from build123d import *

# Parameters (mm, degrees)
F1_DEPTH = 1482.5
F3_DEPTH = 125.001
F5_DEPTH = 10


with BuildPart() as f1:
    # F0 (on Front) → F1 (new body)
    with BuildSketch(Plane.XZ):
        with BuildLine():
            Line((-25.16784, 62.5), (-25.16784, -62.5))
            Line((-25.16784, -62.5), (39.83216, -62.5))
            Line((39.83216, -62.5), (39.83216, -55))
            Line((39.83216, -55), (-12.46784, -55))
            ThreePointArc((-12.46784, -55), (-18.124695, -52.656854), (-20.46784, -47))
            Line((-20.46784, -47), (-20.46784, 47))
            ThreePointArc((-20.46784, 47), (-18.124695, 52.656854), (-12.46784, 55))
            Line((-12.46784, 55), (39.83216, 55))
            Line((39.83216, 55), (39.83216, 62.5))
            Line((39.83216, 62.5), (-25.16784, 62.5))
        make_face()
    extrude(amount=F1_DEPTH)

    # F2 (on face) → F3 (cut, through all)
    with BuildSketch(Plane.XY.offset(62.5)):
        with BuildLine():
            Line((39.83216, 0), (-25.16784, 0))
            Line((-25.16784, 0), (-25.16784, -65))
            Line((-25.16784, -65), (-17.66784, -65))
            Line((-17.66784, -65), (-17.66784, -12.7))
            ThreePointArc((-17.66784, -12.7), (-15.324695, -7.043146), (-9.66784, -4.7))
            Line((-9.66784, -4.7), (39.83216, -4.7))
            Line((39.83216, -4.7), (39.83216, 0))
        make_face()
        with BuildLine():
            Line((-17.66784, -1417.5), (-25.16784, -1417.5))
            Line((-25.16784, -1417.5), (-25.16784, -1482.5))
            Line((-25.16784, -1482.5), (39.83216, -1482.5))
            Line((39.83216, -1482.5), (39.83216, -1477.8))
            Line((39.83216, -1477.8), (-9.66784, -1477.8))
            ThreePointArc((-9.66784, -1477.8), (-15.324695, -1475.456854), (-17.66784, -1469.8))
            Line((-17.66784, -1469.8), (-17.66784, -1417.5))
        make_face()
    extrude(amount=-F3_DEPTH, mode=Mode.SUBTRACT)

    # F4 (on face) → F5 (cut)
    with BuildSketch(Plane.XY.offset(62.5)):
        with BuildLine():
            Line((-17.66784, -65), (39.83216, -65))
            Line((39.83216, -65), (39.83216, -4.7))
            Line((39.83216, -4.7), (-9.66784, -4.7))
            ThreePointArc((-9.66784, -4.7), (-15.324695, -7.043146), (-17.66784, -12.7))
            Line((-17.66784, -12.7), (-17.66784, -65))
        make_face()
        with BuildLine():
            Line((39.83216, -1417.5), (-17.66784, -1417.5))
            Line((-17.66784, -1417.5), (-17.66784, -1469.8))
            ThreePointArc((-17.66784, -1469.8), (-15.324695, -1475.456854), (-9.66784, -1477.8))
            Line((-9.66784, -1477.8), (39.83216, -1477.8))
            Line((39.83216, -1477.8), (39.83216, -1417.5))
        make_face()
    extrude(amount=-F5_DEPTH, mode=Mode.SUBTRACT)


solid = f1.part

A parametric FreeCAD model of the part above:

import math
import FreeCAD as App
import Part
import Sketcher
from FreeCAD import Vector
Q = App.Units.Quantity

doc = App.newDocument("Part")
body = doc.addObject("PartDesign::Body", "Body")

# Sketch on XZ plane
sketch1 = body.newObject("Sketcher::SketchObject", "Sketch")
sketch1.AttachmentSupport = (doc.getObject("XZ_Plane"), [""])
sketch1.MapMode = "FlatFace"
sketch1.addGeometry(Part.LineSegment(Vector(-25, 62, 0), Vector(-25, -62, 0)), False)
sketch1.addGeometry(Part.LineSegment(Vector(-25, -62, 0), Vector(40, -62, 0)), False)
sketch1.addGeometry(Part.LineSegment(Vector(40, -62, 0), Vector(40, -55, 0)), False)
sketch1.addGeometry(Part.LineSegment(Vector(40, -55, 0), Vector(-12, -55, 0)), False)
sketch1.addGeometry(Part.ArcOfCircle(Part.Circle(Vector(-12, -47, 0), Vector(0, 0, 1), 8), math.radians(180), math.radians(270)), False)
sketch1.addGeometry(Part.LineSegment(Vector(-20, -47, 0), Vector(-20, 47, 0)), False)
sketch1.addGeometry(Part.ArcOfCircle(Part.Circle(Vector(-12, 47, 0), Vector(0, 0, 1), 8), math.radians(90), math.radians(180)), False)
sketch1.addGeometry(Part.LineSegment(Vector(-12, 55, 0), Vector(40, 55, 0)), False)
sketch1.addGeometry(Part.LineSegment(Vector(40, 55, 0), Vector(40, 62, 0)), False)
sketch1.addGeometry(Part.LineSegment(Vector(40, 62, 0), Vector(-25, 62, 0)), False)
sketch1.addConstraint(Sketcher.Constraint("Coincident", 0, 2, 1, 1))
sketch1.addConstraint(Sketcher.Constraint("Coincident", 1, 2, 2, 1))
sketch1.addConstraint(Sketcher.Constraint("Coincident", 2, 2, 3, 1))
sketch1.addConstraint(Sketcher.Constraint("Tangent", 3, 2, 4, 2))
sketch1.addConstraint(Sketcher.Constraint("Tangent", 4, 1, 5, 1))
sketch1.addConstraint(Sketcher.Constraint("Tangent", 5, 2, 6, 2))
sketch1.addConstraint(Sketcher.Constraint("Tangent", 6, 1, 7, 1))
sketch1.addConstraint(Sketcher.Constraint("Coincident", 7, 2, 8, 1))
sketch1.addConstraint(Sketcher.Constraint("Coincident", 8, 2, 9, 1))
sketch1.addConstraint(Sketcher.Constraint("Coincident", 9, 2, 0, 1))
sketch1.addConstraint(Sketcher.Constraint("Vertical", 0))
sketch1.addConstraint(Sketcher.Constraint("Horizontal", 1))
sketch1.addConstraint(Sketcher.Constraint("Vertical", 2))
sketch1.addConstraint(Sketcher.Constraint("Horizontal", 3))
sketch1.addConstraint(Sketcher.Constraint("Vertical", 5))
sketch1.addConstraint(Sketcher.Constraint("Horizontal", 7))
sketch1.addConstraint(Sketcher.Constraint("Vertical", 8))
sketch1.addConstraint(Sketcher.Constraint("Horizontal", 9))
sketch1.addConstraint(Sketcher.Constraint("Equal", 4, 6))
sketch1.addConstraint(Sketcher.Constraint("Symmetric", 2, 2, 7, 2, -1))
sketch1.addConstraint(Sketcher.Constraint("Equal", 2, 8))
sketch1.addConstraint(Sketcher.Constraint("Radius", 4, Q("7.999999 mm")))
sketch1.addConstraint(Sketcher.Constraint("DistanceX", 1, 1, 1, 2, Q("65 mm")))
sketch1.addConstraint(Sketcher.Constraint("DistanceY", 0, 2, 0, 1, Q("125 mm")))
sketch1.addConstraint(Sketcher.Constraint("DistanceY", 5, 1, 5, 2, Q("94 mm")))
sketch1.addConstraint(Sketcher.Constraint("DistanceX", 3, 2, 3, 1, Q("52.3 mm")))
sketch1.addConstraint(Sketcher.Constraint("DistanceX", 4, 3, -1, 1, Q("12.467841 mm")))
pad1 = body.newObject("PartDesign::Pad", "Pad")
pad1.Profile = sketch1
pad1.Length = 1482.5

# Sketch on XY plane
sketch2 = body.newObject("Sketcher::SketchObject", "Sketch001")
sketch2.AttachmentSupport = (doc.getObject("XY_Plane"), [""])
sketch2.MapMode = "FlatFace"
sketch2.AttachmentOffset = App.Placement(Vector(0, 0, 62.5), App.Rotation())
sketch2.addGeometry(Part.LineSegment(Vector(39.8, 0, 0), Vector(-25.2, 0, 0)), False)
sketch2.addGeometry(Part.LineSegment(Vector(-25.2, 0, 0), Vector(-25.2, -65, 0)), False)
sketch2.addGeometry(Part.LineSegment(Vector(-25.2, -65, 0), Vector(-17.7, -65, 0)), False)
sketch2.addGeometry(Part.LineSegment(Vector(-17.7, -65, 0), Vector(-17.7, -12.7, 0)), False)
sketch2.addGeometry(Part.ArcOfCircle(Part.Circle(Vector(-9.7, -12.7, 0), Vector(0, 0, 1), 8), math.radians(90), math.radians(180)), False)
sketch2.addGeometry(Part.LineSegment(Vector(-9.7, -4.7, 0), Vector(39.8, -4.7, 0)), False)
sketch2.addGeometry(Part.LineSegment(Vector(39.8, -4.7, 0), Vector(39.8, 0, 0)), False)
sketch2.addGeometry(Part.LineSegment(Vector(-17.7, -1417.5, 0), Vector(-25.2, -1417.5, 0)), False)
sketch2.addGeometry(Part.LineSegment(Vector(-25.2, -1417.5, 0), Vector(-25.2, -1482.5, 0)), False)
sketch2.addGeometry(Part.LineSegment(Vector(-25.2, -1482.5, 0), Vector(39.8, -1482.5, 0)), False)
sketch2.addGeometry(Part.LineSegment(Vector(39.8, -1482.5, 0), Vector(39.8, -1477.8, 0)), False)
sketch2.addGeometry(Part.LineSegment(Vector(39.8, -1477.8, 0), Vector(-9.7, -1477.8, 0)), False)
sketch2.addGeometry(Part.ArcOfCircle(Part.Circle(Vector(-9.7, -1469.8, 0), Vector(0, 0, 1), 8), math.radians(180), math.radians(270)), False)
sketch2.addGeometry(Part.LineSegment(Vector(-17.7, -1469.8, 0), Vector(-17.7, -1417.5, 0)), False)
sketch2.addConstraint(Sketcher.Constraint("Coincident", 0, 2, 1, 1))
sketch2.addConstraint(Sketcher.Constraint("Coincident", 1, 2, 2, 1))
sketch2.addConstraint(Sketcher.Constraint("Coincident", 2, 2, 3, 1))
sketch2.addConstraint(Sketcher.Constraint("Tangent", 3, 2, 4, 2))
sketch2.addConstraint(Sketcher.Constraint("Tangent", 4, 1, 5, 1))
sketch2.addConstraint(Sketcher.Constraint("Coincident", 5, 2, 6, 1))
sketch2.addConstraint(Sketcher.Constraint("Coincident", 6, 2, 0, 1))
sketch2.addConstraint(Sketcher.Constraint("Coincident", 7, 2, 8, 1))
sketch2.addConstraint(Sketcher.Constraint("Coincident", 8, 2, 9, 1))
sketch2.addConstraint(Sketcher.Constraint("Coincident", 9, 2, 10, 1))
sketch2.addConstraint(Sketcher.Constraint("Coincident", 10, 2, 11, 1))
sketch2.addConstraint(Sketcher.Constraint("Tangent", 11, 2, 12, 2))
sketch2.addConstraint(Sketcher.Constraint("Tangent", 12, 1, 13, 1))
sketch2.addConstraint(Sketcher.Constraint("Coincident", 13, 2, 7, 1))
sketch2.addConstraint(Sketcher.Constraint("Horizontal", 0))
sketch2.addConstraint(Sketcher.Constraint("Vertical", 1))
sketch2.addConstraint(Sketcher.Constraint("Horizontal", 2))
sketch2.addConstraint(Sketcher.Constraint("Vertical", 3))
sketch2.addConstraint(Sketcher.Constraint("Horizontal", 5))
sketch2.addConstraint(Sketcher.Constraint("Vertical", 6))
sketch2.addConstraint(Sketcher.Constraint("Horizontal", 7))
sketch2.addConstraint(Sketcher.Constraint("Vertical", 8))
sketch2.addConstraint(Sketcher.Constraint("Horizontal", 9))
sketch2.addConstraint(Sketcher.Constraint("Vertical", 10))
sketch2.addConstraint(Sketcher.Constraint("Horizontal", 11))
sketch2.addConstraint(Sketcher.Constraint("Vertical", 13))
sketch2.addConstraint(Sketcher.Constraint("Equal", 4, 12))
sketch2.addConstraint(Sketcher.Constraint("PointOnObject", 0, 2, -1))
sketch2.addConstraint(Sketcher.Constraint("Vertical", 4, 3, 12, 3))
sketch2.addConstraint(Sketcher.Constraint("Vertical", 1, 2, 7, 2))
sketch2.addConstraint(Sketcher.Constraint("Vertical", 6, 2, 9, 2))
sketch2.addConstraint(Sketcher.Constraint("Equal", 9, 1))
sketch2.addConstraint(Sketcher.Constraint("Equal", 1, 8))
sketch2.addConstraint(Sketcher.Constraint("Equal", 6, 10))
sketch2.addConstraint(Sketcher.Constraint("Radius", 4, Q("7.999999 mm")))
sketch2.addConstraint(Sketcher.Constraint("DistanceX", 0, 2, 0, 1, Q("65 mm")))
sketch2.addConstraint(Sketcher.Constraint("DistanceX", 2, 1, 2, 2, Q("7.5 mm")))
sketch2.addConstraint(Sketcher.Constraint("DistanceY", 3, 1, 3, 2, Q("52.3 mm")))
sketch2.addConstraint(Sketcher.Constraint("DistanceY", 12, 3, -1, 1, Q("1469.800001 mm")))
sketch2.addConstraint(Sketcher.Constraint("DistanceX", 4, 3, -1, 1, Q("9.667841 mm")))
pocket1 = body.newObject("PartDesign::Pocket", "Pocket")
pocket1.Profile = sketch2
pocket1.Type = "ThroughAll"

# Sketch on XY plane
sketch3 = body.newObject("Sketcher::SketchObject", "Sketch002")
sketch3.AttachmentSupport = (doc.getObject("XY_Plane"), [""])
sketch3.MapMode = "FlatFace"
sketch3.AttachmentOffset = App.Placement(Vector(0, 0, 62.5), App.Rotation())
sketch3.addGeometry(Part.LineSegment(Vector(-18, -65, 0), Vector(40, -65, 0)), False)
sketch3.addGeometry(Part.LineSegment(Vector(40, -65, 0), Vector(40, -5, 0)), False)
sketch3.addGeometry(Part.LineSegment(Vector(40, -5, 0), Vector(-10, -5, 0)), False)
sketch3.addGeometry(Part.ArcOfCircle(Part.Circle(Vector(-10, -13, 0), Vector(0, 0, 1), 8), math.radians(90), math.radians(180)), False)
sketch3.addGeometry(Part.LineSegment(Vector(-18, -13, 0), Vector(-18, -65, 0)), False)
sketch3.addGeometry(Part.LineSegment(Vector(40, -1418, 0), Vector(-18, -1418, 0)), False)
sketch3.addGeometry(Part.LineSegment(Vector(-18, -1418, 0), Vector(-18, -1470, 0)), False)
sketch3.addGeometry(Part.ArcOfCircle(Part.Circle(Vector(-10, -1470, 0), Vector(0, 0, 1), 8), math.radians(180), math.radians(270)), False)
sketch3.addGeometry(Part.LineSegment(Vector(-10, -1478, 0), Vector(40, -1478, 0)), False)
sketch3.addGeometry(Part.LineSegment(Vector(40, -1478, 0), Vector(40, -1418, 0)), False)
sketch3.addConstraint(Sketcher.Constraint("Coincident", 0, 2, 1, 1))
sketch3.addConstraint(Sketcher.Constraint("Coincident", 1, 2, 2, 1))
sketch3.addConstraint(Sketcher.Constraint("Tangent", 2, 2, 3, 1))
sketch3.addConstraint(Sketcher.Constraint("Tangent", 3, 2, 4, 1))
sketch3.addConstraint(Sketcher.Constraint("Coincident", 4, 2, 0, 1))
sketch3.addConstraint(Sketcher.Constraint("Coincident", 5, 2, 6, 1))
sketch3.addConstraint(Sketcher.Constraint("Tangent", 6, 2, 7, 1))
sketch3.addConstraint(Sketcher.Constraint("Tangent", 7, 2, 8, 1))
sketch3.addConstraint(Sketcher.Constraint("Coincident", 8, 2, 9, 1))
sketch3.addConstraint(Sketcher.Constraint("Coincident", 9, 2, 5, 1))
sketch3.addConstraint(Sketcher.Constraint("Horizontal", 0))
sketch3.addConstraint(Sketcher.Constraint("Vertical", 1))
sketch3.addConstraint(Sketcher.Constraint("Horizontal", 2))
sketch3.addConstraint(Sketcher.Constraint("Vertical", 4))
sketch3.addConstraint(Sketcher.Constraint("Horizontal", 5))
sketch3.addConstraint(Sketcher.Constraint("Vertical", 6))
sketch3.addConstraint(Sketcher.Constraint("Horizontal", 8))
sketch3.addConstraint(Sketcher.Constraint("Vertical", 9))
sketch3.addConstraint(Sketcher.Constraint("Equal", 3, 7))
sketch3.addConstraint(Sketcher.Constraint("Vertical", 3, 3, 7, 3))
sketch3.addConstraint(Sketcher.Constraint("Vertical", 1, 2, 8, 2))
sketch3.addConstraint(Sketcher.Constraint("Equal", 4, 6))
sketch3.addConstraint(Sketcher.Constraint("Radius", 3, Q("7.999999 mm")))
sketch3.addConstraint(Sketcher.Constraint("DistanceX", 0, 1, 0, 2, Q("57.5 mm")))
sketch3.addConstraint(Sketcher.Constraint("DistanceY", 1, 1, 1, 2, Q("60.3 mm")))
sketch3.addConstraint(Sketcher.Constraint("DistanceY", 0, 2, -1, 1, Q("65 mm")))
sketch3.addConstraint(Sketcher.Constraint("DistanceY", 7, 3, -1, 1, Q("1469.800001 mm")))
sketch3.addConstraint(Sketcher.Constraint("DistanceX", 3, 3, -1, 1, Q("9.667841 mm")))
pocket2 = body.newObject("PartDesign::Pocket", "Pocket001")
pocket2.Profile = sketch3
pocket2.Length = 10

doc.recompute()
